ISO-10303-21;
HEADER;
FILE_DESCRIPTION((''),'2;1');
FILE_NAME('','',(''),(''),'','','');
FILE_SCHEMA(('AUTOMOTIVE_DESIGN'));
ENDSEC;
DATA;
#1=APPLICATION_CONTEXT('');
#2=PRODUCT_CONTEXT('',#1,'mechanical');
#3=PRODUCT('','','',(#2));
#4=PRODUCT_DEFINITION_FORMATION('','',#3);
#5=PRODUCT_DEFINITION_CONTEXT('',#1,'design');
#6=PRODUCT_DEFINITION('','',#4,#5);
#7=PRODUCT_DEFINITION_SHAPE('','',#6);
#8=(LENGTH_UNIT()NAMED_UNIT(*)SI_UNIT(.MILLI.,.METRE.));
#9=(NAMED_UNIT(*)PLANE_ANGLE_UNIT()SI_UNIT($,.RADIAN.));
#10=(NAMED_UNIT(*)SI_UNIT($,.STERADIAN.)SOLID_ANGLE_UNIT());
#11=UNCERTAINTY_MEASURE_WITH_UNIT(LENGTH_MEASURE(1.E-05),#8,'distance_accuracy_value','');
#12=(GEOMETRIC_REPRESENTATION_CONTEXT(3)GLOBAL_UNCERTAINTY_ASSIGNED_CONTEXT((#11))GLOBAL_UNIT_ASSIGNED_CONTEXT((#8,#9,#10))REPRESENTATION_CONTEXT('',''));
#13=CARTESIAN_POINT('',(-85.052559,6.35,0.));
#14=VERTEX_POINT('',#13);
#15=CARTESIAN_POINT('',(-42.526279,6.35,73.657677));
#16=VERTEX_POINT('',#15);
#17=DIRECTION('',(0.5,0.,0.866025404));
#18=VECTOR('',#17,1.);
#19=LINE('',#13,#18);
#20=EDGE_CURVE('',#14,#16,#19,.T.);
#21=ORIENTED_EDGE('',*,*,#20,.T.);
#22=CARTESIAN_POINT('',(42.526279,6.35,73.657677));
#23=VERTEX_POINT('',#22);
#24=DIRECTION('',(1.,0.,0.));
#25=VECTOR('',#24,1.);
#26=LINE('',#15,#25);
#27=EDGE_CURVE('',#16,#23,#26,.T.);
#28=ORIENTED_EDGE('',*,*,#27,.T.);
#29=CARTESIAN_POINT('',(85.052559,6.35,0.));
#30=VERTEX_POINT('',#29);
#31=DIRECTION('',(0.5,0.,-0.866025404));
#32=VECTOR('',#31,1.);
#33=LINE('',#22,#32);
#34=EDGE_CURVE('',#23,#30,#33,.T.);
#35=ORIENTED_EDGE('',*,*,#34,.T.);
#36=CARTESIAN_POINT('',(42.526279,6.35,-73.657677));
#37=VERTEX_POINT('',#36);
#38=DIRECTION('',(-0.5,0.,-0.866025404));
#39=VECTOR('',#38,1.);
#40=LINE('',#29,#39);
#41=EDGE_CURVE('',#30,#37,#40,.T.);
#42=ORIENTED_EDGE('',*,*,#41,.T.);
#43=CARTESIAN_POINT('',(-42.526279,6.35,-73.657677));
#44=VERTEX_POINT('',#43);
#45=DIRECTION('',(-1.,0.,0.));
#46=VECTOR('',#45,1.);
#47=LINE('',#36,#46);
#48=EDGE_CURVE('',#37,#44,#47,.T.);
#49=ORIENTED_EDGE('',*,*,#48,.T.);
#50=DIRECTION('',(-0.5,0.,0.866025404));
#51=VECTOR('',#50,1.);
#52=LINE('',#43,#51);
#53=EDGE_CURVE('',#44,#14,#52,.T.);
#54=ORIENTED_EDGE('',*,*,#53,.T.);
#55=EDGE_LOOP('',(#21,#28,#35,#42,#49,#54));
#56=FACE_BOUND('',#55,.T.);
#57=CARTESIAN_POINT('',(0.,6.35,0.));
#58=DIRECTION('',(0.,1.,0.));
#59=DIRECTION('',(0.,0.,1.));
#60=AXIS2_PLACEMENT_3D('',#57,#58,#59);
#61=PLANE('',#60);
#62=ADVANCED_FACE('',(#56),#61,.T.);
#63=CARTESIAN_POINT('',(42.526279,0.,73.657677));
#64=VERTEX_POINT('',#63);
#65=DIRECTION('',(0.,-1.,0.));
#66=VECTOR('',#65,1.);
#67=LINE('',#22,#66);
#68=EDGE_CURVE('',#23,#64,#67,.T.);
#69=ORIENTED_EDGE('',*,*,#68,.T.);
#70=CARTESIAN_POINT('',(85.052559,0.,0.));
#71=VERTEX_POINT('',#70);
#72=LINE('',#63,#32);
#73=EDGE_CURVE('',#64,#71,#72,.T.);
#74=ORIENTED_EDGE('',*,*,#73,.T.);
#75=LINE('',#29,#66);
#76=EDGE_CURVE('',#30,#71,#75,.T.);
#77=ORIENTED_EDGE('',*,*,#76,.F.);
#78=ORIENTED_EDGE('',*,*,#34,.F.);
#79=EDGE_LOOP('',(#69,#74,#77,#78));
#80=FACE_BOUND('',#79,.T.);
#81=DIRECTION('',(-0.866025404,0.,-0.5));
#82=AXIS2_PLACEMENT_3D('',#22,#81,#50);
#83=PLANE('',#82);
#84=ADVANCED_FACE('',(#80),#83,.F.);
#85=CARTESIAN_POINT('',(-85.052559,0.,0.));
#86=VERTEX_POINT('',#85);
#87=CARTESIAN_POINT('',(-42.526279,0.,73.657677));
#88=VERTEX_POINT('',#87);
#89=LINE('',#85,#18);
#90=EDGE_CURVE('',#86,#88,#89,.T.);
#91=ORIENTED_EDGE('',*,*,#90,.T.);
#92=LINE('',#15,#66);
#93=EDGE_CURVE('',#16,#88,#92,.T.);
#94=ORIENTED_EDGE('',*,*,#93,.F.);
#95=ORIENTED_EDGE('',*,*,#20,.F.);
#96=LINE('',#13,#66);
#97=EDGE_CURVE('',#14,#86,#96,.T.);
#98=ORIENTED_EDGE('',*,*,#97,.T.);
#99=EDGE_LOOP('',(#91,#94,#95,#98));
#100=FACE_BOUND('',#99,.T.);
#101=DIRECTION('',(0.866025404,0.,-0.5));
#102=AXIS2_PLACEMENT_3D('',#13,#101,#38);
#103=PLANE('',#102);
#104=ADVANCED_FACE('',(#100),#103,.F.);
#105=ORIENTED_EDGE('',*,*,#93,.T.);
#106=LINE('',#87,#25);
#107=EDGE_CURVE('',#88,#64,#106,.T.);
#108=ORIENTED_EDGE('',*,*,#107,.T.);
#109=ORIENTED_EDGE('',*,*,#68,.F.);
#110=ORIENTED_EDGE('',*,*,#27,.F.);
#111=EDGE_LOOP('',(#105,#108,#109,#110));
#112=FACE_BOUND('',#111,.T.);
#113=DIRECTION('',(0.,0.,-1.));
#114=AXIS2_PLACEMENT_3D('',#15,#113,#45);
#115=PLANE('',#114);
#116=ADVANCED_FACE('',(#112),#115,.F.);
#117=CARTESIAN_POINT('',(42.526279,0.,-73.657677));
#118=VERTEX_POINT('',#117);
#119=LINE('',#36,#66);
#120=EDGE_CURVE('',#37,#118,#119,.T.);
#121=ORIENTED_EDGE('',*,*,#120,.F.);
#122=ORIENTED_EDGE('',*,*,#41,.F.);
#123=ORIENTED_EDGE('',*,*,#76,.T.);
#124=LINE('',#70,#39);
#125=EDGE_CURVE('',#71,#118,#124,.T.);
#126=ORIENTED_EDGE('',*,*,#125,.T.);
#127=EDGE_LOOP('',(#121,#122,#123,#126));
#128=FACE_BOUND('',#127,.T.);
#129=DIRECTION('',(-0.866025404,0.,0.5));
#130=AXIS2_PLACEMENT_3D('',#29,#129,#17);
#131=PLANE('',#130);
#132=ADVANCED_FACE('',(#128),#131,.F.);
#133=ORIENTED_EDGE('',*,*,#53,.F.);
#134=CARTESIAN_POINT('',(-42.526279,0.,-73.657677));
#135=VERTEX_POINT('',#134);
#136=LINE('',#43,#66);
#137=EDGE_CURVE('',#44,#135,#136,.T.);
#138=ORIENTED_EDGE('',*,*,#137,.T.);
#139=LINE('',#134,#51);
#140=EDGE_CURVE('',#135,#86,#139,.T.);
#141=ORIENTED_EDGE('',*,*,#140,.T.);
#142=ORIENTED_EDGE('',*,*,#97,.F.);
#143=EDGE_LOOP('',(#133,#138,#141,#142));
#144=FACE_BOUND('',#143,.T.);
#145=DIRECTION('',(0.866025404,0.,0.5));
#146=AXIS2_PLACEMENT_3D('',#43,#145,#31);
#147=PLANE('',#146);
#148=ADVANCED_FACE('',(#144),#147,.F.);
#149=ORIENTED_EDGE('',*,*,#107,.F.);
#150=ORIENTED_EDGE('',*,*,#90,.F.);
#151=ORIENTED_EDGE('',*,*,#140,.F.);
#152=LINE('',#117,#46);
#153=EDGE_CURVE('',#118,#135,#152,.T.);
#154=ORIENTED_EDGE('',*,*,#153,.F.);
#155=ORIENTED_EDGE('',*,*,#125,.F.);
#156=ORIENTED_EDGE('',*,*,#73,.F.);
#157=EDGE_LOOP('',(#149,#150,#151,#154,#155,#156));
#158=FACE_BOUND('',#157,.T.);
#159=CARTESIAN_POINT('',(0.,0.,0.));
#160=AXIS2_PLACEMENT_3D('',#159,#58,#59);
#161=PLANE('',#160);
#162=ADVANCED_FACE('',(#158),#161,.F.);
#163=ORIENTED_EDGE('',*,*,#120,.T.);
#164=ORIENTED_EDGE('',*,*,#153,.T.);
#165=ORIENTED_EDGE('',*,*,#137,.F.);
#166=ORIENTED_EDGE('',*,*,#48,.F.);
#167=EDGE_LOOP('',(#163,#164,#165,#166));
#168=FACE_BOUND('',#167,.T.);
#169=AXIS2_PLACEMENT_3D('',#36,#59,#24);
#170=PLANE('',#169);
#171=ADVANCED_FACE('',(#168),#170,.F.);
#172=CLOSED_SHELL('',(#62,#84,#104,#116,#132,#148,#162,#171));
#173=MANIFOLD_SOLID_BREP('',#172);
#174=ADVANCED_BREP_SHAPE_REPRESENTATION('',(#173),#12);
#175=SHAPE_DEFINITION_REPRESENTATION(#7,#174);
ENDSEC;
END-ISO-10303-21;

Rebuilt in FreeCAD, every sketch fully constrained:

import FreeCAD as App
import Part
import Sketcher

V = App.Vector
Q = App.Units.Quantity


def add_polygon(sketch, points):
    """Adds a closed chain of lines whose ends are joined by coincident constraints."""
    first, n = sketch.GeometryCount, len(points)
    for a, b in zip(points, points[1:] + points[:1]):
        sketch.addGeometry(Part.LineSegment(App.Vector(*a, 0), App.Vector(*b, 0)), False)
    for i in range(n):
        sketch.addConstraint(Sketcher.Constraint("Coincident", first + i, 2, first + (i + 1) % n, 1))

doc = App.newDocument("Part")
body = doc.addObject("PartDesign::Body", "Body")

# Sketch on XZ plane
sketch1 = body.newObject("Sketcher::SketchObject", "Sketch")
sketch1.AttachmentSupport = (doc.getObject("XZ_Plane"), [""])
sketch1.MapMode = "FlatFace"
add_polygon(sketch1, [(-43, 74), (43, 74), (85, 0), (43, -74), (-43, -74), (-85, 0)])  # lines 0-5
sketch1.addConstraint([
    Sketcher.Constraint("Horizontal", 0),
    Sketcher.Constraint("Horizontal", 3),
    Sketcher.Constraint("Symmetric", 0, 2, 3, 2, -1, 1),
    Sketcher.Constraint("Symmetric", 1, 2, 4, 2, -1, 1),
    Sketcher.Constraint("PointOnObject", 1, 2, -1),
    Sketcher.Constraint("Parallel", 2, 5),
    Sketcher.Constraint("Vertical", 0, 2, 2, 2),
    Sketcher.Constraint("Angle", 1, Q("-60 deg")),
    Sketcher.Constraint("DistanceX", 0, 1, 0, 2, Q("85.052559 mm")),
    Sketcher.Constraint("Distance", 1, Q("85.052559 mm")),
])
pad1 = body.newObject("PartDesign::Pad", "Pad")
pad1.Profile = sketch1
pad1.Length = Q("0.25 in")
pad1.Reversed = True

doc.recompute()
